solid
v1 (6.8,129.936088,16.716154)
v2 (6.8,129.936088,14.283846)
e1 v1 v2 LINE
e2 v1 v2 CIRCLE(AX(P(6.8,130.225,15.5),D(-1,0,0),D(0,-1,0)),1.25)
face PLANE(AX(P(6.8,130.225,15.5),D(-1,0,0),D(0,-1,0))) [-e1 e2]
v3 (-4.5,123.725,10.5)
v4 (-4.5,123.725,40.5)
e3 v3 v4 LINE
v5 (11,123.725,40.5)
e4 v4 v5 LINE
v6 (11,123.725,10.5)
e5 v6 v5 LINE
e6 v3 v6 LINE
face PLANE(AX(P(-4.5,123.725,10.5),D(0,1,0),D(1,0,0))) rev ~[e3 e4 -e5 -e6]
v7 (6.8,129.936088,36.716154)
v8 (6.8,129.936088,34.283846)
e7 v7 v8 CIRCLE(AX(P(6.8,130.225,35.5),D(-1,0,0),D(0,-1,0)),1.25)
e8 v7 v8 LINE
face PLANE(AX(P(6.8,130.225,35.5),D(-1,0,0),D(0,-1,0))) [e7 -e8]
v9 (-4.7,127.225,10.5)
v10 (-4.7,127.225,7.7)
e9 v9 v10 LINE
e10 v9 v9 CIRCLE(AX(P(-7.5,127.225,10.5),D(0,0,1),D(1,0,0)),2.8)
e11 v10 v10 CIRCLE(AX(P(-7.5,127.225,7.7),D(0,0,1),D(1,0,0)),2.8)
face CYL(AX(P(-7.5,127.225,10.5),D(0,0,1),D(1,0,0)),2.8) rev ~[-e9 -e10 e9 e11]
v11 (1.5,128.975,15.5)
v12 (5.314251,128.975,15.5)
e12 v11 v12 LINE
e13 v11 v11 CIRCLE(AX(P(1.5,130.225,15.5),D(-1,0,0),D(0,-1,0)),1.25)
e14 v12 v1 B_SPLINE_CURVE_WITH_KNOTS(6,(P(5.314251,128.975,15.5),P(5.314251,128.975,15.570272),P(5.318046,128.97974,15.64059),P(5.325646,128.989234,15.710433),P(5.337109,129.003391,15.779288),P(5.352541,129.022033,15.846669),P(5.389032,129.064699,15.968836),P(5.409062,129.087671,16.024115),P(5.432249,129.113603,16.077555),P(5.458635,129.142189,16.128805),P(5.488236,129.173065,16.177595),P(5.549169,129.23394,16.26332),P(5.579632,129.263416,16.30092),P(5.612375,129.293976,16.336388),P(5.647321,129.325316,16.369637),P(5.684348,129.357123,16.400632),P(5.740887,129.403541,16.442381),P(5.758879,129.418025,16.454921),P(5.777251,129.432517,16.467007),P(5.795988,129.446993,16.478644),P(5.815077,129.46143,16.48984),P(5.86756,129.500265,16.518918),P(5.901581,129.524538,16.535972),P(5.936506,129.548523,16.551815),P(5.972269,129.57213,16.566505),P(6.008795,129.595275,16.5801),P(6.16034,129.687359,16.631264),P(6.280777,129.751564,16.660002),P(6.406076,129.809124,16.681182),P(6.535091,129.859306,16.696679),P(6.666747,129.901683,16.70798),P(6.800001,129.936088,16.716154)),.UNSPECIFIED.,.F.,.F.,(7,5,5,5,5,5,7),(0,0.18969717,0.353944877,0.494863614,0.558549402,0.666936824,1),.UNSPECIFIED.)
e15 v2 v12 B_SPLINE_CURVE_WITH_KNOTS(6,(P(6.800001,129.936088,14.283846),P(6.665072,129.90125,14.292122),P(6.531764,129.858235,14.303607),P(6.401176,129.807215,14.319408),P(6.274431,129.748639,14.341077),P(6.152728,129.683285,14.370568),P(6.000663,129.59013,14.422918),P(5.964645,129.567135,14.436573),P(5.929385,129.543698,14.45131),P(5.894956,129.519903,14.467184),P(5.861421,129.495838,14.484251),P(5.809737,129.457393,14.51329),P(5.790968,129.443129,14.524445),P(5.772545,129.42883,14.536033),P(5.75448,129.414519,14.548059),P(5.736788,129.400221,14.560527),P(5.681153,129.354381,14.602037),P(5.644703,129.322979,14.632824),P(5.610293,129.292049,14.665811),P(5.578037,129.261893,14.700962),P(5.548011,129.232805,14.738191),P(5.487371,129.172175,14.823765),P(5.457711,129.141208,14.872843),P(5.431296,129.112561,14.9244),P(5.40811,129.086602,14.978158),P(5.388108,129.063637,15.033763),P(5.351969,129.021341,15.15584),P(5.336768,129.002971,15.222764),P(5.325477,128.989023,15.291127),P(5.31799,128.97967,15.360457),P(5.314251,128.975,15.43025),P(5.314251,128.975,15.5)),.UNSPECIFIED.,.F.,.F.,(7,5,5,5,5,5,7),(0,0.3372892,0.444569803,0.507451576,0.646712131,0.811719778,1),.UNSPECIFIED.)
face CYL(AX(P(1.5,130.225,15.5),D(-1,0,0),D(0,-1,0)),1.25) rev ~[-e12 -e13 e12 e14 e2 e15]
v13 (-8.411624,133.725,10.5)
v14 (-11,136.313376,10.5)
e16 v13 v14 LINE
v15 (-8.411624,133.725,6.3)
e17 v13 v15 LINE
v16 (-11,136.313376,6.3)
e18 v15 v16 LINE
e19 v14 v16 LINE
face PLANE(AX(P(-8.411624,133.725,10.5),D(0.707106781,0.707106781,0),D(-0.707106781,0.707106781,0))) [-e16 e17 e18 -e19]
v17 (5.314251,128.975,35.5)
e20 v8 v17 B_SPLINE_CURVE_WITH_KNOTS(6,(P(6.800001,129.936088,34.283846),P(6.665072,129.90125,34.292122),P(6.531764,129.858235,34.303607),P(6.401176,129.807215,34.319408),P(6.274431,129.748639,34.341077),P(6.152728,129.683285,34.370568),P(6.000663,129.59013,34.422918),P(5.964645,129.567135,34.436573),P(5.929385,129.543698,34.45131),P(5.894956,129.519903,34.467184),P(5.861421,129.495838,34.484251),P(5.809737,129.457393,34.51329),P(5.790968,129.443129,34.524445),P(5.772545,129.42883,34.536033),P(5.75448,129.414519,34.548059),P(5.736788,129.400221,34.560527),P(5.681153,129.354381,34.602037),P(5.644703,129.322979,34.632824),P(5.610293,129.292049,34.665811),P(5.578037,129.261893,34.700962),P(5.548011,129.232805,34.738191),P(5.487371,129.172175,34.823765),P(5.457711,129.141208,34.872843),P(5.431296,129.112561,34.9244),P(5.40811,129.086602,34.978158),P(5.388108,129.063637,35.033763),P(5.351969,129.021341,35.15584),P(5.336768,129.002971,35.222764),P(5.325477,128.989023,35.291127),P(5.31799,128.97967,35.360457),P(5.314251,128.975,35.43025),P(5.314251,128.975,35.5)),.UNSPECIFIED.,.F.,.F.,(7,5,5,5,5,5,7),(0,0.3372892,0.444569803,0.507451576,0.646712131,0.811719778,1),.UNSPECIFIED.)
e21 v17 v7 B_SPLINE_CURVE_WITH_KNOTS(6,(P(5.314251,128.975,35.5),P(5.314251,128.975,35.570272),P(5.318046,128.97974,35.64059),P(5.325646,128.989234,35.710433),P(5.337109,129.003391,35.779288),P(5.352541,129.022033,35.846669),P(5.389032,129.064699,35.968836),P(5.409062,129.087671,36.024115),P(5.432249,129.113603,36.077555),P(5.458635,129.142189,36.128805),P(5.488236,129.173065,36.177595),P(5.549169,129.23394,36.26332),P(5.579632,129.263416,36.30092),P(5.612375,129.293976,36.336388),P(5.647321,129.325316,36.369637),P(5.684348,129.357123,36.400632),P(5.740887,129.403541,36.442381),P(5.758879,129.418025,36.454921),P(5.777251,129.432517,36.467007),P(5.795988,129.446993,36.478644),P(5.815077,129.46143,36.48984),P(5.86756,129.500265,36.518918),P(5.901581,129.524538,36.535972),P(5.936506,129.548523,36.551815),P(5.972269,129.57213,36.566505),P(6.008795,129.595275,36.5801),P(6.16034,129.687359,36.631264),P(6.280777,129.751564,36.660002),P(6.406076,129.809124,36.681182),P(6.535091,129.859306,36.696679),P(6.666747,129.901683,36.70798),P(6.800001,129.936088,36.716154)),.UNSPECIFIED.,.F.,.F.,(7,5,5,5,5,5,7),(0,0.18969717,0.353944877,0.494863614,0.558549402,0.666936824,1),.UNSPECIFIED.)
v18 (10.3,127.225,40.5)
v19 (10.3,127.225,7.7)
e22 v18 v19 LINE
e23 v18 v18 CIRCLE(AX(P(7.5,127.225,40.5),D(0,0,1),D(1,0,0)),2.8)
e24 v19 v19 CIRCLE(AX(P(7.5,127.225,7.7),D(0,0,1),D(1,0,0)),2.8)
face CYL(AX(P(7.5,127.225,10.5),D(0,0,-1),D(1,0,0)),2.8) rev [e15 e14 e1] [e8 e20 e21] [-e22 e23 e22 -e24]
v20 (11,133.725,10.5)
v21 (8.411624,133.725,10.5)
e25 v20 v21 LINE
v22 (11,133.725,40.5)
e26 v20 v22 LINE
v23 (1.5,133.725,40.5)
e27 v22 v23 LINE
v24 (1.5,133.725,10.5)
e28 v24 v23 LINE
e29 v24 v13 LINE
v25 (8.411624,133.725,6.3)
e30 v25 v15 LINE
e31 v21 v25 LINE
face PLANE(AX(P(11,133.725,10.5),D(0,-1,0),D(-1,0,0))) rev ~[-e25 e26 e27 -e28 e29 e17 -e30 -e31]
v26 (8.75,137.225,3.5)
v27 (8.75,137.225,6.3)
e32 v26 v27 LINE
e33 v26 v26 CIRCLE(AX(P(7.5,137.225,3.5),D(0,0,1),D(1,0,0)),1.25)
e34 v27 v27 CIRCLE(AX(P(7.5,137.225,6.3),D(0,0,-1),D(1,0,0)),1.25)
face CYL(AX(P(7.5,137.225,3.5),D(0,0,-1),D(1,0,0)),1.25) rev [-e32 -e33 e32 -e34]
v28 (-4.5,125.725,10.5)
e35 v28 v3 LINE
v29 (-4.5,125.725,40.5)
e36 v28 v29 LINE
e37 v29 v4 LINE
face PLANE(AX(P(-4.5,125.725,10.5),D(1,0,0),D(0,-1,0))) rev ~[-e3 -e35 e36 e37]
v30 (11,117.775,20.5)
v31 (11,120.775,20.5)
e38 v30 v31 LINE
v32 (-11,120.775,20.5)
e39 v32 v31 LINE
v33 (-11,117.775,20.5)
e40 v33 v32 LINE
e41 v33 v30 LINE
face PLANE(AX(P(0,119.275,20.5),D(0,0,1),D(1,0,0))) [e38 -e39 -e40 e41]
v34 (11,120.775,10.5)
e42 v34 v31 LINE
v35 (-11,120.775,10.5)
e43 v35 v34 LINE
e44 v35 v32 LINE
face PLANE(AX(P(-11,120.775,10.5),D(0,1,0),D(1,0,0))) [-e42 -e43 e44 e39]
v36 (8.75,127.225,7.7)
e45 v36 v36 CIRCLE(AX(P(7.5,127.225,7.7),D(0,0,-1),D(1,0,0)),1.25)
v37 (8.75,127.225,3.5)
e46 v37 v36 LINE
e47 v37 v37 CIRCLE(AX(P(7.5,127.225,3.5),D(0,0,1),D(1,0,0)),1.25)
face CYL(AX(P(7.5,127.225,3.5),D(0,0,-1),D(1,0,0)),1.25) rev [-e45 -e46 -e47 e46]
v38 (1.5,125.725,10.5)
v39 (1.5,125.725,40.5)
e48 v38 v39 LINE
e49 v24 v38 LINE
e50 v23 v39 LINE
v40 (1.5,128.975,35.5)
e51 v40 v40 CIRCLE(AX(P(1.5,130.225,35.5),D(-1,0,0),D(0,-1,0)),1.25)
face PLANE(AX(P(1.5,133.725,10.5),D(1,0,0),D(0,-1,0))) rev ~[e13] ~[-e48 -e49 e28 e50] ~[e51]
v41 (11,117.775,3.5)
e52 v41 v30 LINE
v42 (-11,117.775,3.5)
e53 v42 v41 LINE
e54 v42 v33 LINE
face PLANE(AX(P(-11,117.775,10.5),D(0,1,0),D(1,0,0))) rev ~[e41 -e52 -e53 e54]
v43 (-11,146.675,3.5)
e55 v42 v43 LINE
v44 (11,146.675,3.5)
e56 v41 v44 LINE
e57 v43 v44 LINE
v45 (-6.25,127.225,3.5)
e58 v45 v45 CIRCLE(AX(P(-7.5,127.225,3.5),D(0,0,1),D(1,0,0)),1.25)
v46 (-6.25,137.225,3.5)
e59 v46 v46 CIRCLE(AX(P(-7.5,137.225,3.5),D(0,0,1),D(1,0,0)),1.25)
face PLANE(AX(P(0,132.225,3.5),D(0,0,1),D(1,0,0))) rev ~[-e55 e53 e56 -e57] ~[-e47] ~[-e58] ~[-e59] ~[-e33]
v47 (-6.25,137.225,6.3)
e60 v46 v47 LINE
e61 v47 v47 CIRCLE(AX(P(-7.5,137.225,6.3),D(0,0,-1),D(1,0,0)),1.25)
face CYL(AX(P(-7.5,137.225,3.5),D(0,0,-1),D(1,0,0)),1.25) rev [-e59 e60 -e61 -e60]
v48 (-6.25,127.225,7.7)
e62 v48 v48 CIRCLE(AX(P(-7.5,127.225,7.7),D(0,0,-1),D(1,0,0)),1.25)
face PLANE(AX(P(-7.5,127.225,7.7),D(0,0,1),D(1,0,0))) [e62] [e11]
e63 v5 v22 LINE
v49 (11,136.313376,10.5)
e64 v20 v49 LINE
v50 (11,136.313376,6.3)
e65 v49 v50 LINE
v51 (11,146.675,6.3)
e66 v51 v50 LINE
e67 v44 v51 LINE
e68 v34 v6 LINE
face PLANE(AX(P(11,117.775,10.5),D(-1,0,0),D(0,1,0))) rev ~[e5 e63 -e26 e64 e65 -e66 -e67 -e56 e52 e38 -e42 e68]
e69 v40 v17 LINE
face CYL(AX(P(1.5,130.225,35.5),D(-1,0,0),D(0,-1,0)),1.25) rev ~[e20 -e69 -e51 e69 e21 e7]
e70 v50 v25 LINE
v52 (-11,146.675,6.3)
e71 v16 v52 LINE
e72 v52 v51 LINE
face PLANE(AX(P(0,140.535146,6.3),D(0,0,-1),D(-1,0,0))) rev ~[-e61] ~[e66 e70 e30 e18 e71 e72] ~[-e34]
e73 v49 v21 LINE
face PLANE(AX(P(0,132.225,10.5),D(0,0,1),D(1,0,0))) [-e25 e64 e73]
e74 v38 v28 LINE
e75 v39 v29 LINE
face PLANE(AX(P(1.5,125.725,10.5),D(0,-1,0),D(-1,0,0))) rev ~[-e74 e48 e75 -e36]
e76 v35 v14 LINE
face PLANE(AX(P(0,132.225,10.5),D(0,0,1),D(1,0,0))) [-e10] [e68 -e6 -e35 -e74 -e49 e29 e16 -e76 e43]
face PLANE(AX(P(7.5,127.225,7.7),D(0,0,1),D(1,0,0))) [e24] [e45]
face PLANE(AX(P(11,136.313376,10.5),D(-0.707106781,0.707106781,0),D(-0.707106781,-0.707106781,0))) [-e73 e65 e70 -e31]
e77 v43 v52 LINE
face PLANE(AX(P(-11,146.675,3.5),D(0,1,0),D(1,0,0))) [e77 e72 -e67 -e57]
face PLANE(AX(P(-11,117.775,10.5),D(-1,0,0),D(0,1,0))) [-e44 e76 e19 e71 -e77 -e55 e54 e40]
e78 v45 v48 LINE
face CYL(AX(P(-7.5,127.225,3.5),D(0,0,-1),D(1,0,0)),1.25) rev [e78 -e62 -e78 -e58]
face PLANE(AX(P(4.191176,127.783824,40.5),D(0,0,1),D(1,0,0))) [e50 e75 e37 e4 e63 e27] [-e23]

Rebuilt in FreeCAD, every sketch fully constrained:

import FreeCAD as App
import Part
import Sketcher
from FreeCAD import Vector
Q = App.Units.Quantity

doc = App.newDocument("Part")
params = doc.addObject("Spreadsheet::Sheet", "Params")
for row, (alias, value) in enumerate([
    ("sketch1_diameter", "2.5 mm"),
    ("sketch1_width", "22 mm"),
    ("sketch1_height", "28.9 mm"),
    ("pad1_length", "7 mm"),
    ("sketch2_width", "22 mm"),
    ("pocket1_length", "4.2 mm"),
    ("sketch3_diameter", "5.6 mm"),
    ("pocket2_length", "2.8 mm"),
    ("sketch4_diameter", "5.6 mm"),
    ("sketch4_width", "6 mm"),
    ("sketch4_height", "10 mm"),
    ("sketch4_height2", "8 mm"),
    ("sketch4_width2", "15.5 mm"),
    ("pad2_length", "30 mm"),
    ("sketch5_diameter", "2.5 mm"),
    ("pocket3_length", "5.3 mm"),
    ("sketch6_width", "22 mm"),
    ("sketch6_height", "3 mm"),
    ("pad3_length", "10 mm"),
], start=1):
    params.set(f"A{row}", alias)
    params.set(f"B{row}", "=" + value)
    params.setAlias(f"B{row}", alias)

body = doc.addObject("PartDesign::Body", "Body")

sketch1 = doc.addObject("Sketcher::SketchObject", "Sketch")
body.addObject(sketch1)
sketch1.AttachmentSupport = (doc.XY_Plane, [""])
sketch1.MapMode = "FlatFace"
sketch1.AttachmentOffset = App.Placement(Vector(0, 0, 3.5), App.Rotation())
sketch1.addGeometry([
    Part.LineSegment(Vector(-11, 146.7, 0), Vector(-11, 117.8, 0)),
    Part.LineSegment(Vector(-11, 117.8, 0), Vector(11, 117.8, 0)),
    Part.LineSegment(Vector(11, 117.8, 0), Vector(11, 146.7, 0)),
    Part.LineSegment(Vector(11, 146.7, 0), Vector(-11, 146.7, 0)),
    Part.Circle(Vector(-7.5, 127.2, 0), Vector(0, 0, 1), 1.2),
    Part.Circle(Vector(7.5, 127.2, 0), Vector(0, 0, 1), 1.2),
    Part.Circle(Vector(-7.5, 137.2, 0), Vector(0, 0, 1), 1.2),
    Part.Circle(Vector(7.5, 137.2, 0), Vector(0, 0, 1), 1.2),
], False)
sketch1.addConstraint([
    Sketcher.Constraint("Coincident", 0, 2, 1, 1),
    Sketcher.Constraint("Coincident", 1, 2, 2, 1),
    Sketcher.Constraint("Coincident", 2, 2, 3, 1),
    Sketcher.Constraint("Coincident", 3, 2, 0, 1),
    Sketcher.Constraint("Vertical", 0),
    Sketcher.Constraint("Horizontal", 1),
    Sketcher.Constraint("Vertical", 2),
    Sketcher.Constraint("Horizontal", 3),
    Sketcher.Constraint("Equal", 4, 5),
    Sketcher.Constraint("Equal", 5, 6),
    Sketcher.Constraint("Equal", 6, 7),
    Sketcher.Constraint("Symmetric", 4, 3, 5, 3, -2),
    Sketcher.Constraint("Symmetric", 6, 3, 7, 3, -2),
    Sketcher.Constraint("Vertical", 4, 3, 6, 3),
    Sketcher.Constraint("Diameter", 4, Q("2.5 mm")),
    Sketcher.Constraint("DistanceX", 1, 1, 1, 2, Q("22 mm")),
    Sketcher.Constraint("DistanceY", 0, 2, 0, 1, Q("28.9 mm")),
    Sketcher.Constraint("DistanceX", 0, 2, -1, 1, Q("11 mm")),
    Sketcher.Constraint("DistanceX", 4, 3, 5, 3, Q("15 mm")),
    Sketcher.Constraint("DistanceY", 4, 3, 6, 3, Q("10 mm")),
    Sketcher.Constraint("DistanceY", 0, 2, 4, 3, Q("9.45 mm")),
    Sketcher.Constraint("DistanceY", -1, 1, 4, 3, Q("127.225 mm")),
])
sketch1.setExpression("Constraints[14]", "Params.sketch1_diameter")
sketch1.setExpression("Constraints[15]", "Params.sketch1_width")
sketch1.setExpression("Constraints[16]", "Params.sketch1_height")
pad1 = doc.addObject("PartDesign::Pad", "Pad")
body.addObject(pad1)
pad1.Profile = sketch1
pad1.setExpression("Length", "Params.pad1_length")

sketch2 = doc.addObject("Sketcher::SketchObject", "Sketch001")
body.addObject(sketch2)
sketch2.AttachmentSupport = (doc.XY_Plane, [""])
sketch2.MapMode = "FlatFace"
sketch2.AttachmentOffset = App.Placement(Vector(0, 0, 10.5), App.Rotation())
sketch2.addGeometry([
    Part.LineSegment(Vector(-11, 136.3, 0), Vector(-8.4, 133.7, 0)),
    Part.LineSegment(Vector(-8.4, 133.7, 0), Vector(8.4, 133.7, 0)),
    Part.LineSegment(Vector(8.4, 133.7, 0), Vector(11, 136.3, 0)),
    Part.LineSegment(Vector(11, 136.3, 0), Vector(11, 146.7, 0)),
    Part.LineSegment(Vector(11, 146.7, 0), Vector(-11, 146.7, 0)),
    Part.LineSegment(Vector(-11, 146.7, 0), Vector(-11, 136.3, 0)),
], False)
sketch2.addConstraint([
    Sketcher.Constraint("Coincident", 0, 2, 1, 1),
    Sketcher.Constraint("Coincident", 1, 2, 2, 1),
    Sketcher.Constraint("Coincident", 2, 2, 3, 1),
    Sketcher.Constraint("Coincident", 3, 2, 4, 1),
    Sketcher.Constraint("Coincident", 4, 2, 5, 1),
    Sketcher.Constraint("Coincident", 5, 2, 0, 1),
    Sketcher.Constraint("Horizontal", 1),
    Sketcher.Constraint("Vertical", 3),
    Sketcher.Constraint("Horizontal", 4),
    Sketcher.Constraint("Vertical", 5),
    Sketcher.Constraint("Symmetric", 2, 2, 5, 2, -2),
    Sketcher.Constraint("Perpendicular", 0, 2),
    Sketcher.Constraint("Equal", 0, 2),
    Sketcher.Constraint("DistanceX", 4, 2, 4, 1, Q("22 mm")),
    Sketcher.Constraint("DistanceY", 1, 2, 3, 2, Q("12.95 mm")),
    Sketcher.Constraint("DistanceY", -1, 1, 0, 2, Q("133.725 mm")),
    Sketcher.Constraint("DistanceX", 1, 1, 1, 2, Q("16.823248 mm")),
])
sketch2.setExpression("Constraints[13]", "Params.sketch2_width")
pocket1 = doc.addObject("PartDesign::Pocket", "Pocket")
body.addObject(pocket1)
pocket1.Profile = sketch2
pocket1.setExpression("Length", "Params.pocket1_length")

sketch3 = doc.addObject("Sketcher::SketchObject", "Sketch002")
body.addObject(sketch3)
sketch3.AttachmentSupport = (doc.XY_Plane, [""])
sketch3.MapMode = "FlatFace"
sketch3.AttachmentOffset = App.Placement(Vector(0, 0, 10.5), App.Rotation())
sketch3.addGeometry([
    Part.Circle(Vector(-7.5, 127.2, 0), Vector(0, 0, 1), 2.8),
    Part.Circle(Vector(7.5, 127.2, 0), Vector(0, 0, 1), 2.8),
], False)
sketch3.addConstraint([
    Sketcher.Constraint("Equal", 0, 1),
    Sketcher.Constraint("Symmetric", 0, 3, 1, 3, -2),
    Sketcher.Constraint("Diameter", 0, Q("5.6 mm")),
    Sketcher.Constraint("DistanceX", 0, 3, 1, 3, Q("15 mm")),
    Sketcher.Constraint("DistanceY", -1, 1, 0, 3, Q("127.225 mm")),
])
sketch3.setExpression("Constraints[2]", "Params.sketch3_diameter")
pocket2 = doc.addObject("PartDesign::Pocket", "Pocket001")
body.addObject(pocket2)
pocket2.Profile = sketch3
pocket2.setExpression("Length", "Params.pocket2_length")

sketch4 = doc.addObject("Sketcher::SketchObject", "Sketch003")
body.addObject(sketch4)
sketch4.AttachmentSupport = (doc.XY_Plane, [""])
sketch4.MapMode = "FlatFace"
sketch4.AttachmentOffset = App.Placement(Vector(0, 0, 10.5), App.Rotation())
sketch4.addGeometry([
    Part.LineSegment(Vector(-4.5, 123.7, 0), Vector(11, 123.7, 0)),
    Part.LineSegment(Vector(11, 123.7, 0), Vector(11, 133.7, 0)),
    Part.LineSegment(Vector(11, 133.7, 0), Vector(1.5, 133.7, 0)),
    Part.LineSegment(Vector(1.5, 133.7, 0), Vector(1.5, 125.7, 0)),
    Part.LineSegment(Vector(1.5, 125.7, 0), Vector(-4.5, 125.7, 0)),
    Part.LineSegment(Vector(-4.5, 125.7, 0), Vector(-4.5, 123.7, 0)),
    Part.Circle(Vector(7.5, 127.2, 0), Vector(0, 0, 1), 2.8),
], False)
sketch4.addConstraint([
    Sketcher.Constraint("Coincident", 0, 2, 1, 1),
    Sketcher.Constraint("Coincident", 1, 2, 2, 1),
    Sketcher.Constraint("Coincident", 2, 2, 3, 1),
    Sketcher.Constraint("Coincident", 3, 2, 4, 1),
    Sketcher.Constraint("Coincident", 4, 2, 5, 1),
    Sketcher.Constraint("Coincident", 5, 2, 0, 1),
    Sketcher.Constraint("Horizontal", 0),
    Sketcher.Constraint("Vertical", 1),
    Sketcher.Constraint("Horizontal", 2),
    Sketcher.Constraint("Vertical", 3),
    Sketcher.Constraint("Horizontal", 4),
    Sketcher.Constraint("Vertical", 5),
    Sketcher.Constraint("Diameter", 6, Q("5.6 mm")),
    Sketcher.Constraint("DistanceX", 4, 2, 4, 1, Q("6 mm")),
    Sketcher.Constraint("DistanceY", 1, 1, 1, 2, Q("10 mm")),
    Sketcher.Constraint("DistanceY", 3, 2, 3, 1, Q("8 mm")),
    Sketcher.Constraint("DistanceX", 0, 1, 0, 2, Q("15.5 mm")),
    Sketcher.Constraint("DistanceX", -1, 1, 0, 2, Q("11 mm")),
    Sketcher.Constraint("DistanceX", 2, 2, 6, 3, Q("6 mm")),
    Sketcher.Constraint("DistanceY", 0, 2, 6, 3, Q("3.5 mm")),
    Sketcher.Constraint("DistanceY", -1, 1, 6, 3, Q("127.225 mm")),
])
sketch4.setExpression("Constraints[12]", "Params.sketch4_diameter")
sketch4.setExpression("Constraints[13]", "Params.sketch4_width")
sketch4.setExpression("Constraints[14]", "Params.sketch4_height")
sketch4.setExpression("Constraints[15]", "Params.sketch4_height2")
sketch4.setExpression("Constraints[16]", "Params.sketch4_width2")
pad2 = doc.addObject("PartDesign::Pad", "Pad001")
body.addObject(pad2)
pad2.Profile = sketch4
pad2.setExpression("Length", "Params.pad2_length")

sketch5 = doc.addObject("Sketcher::SketchObject", "Sketch004")
body.addObject(sketch5)
sketch5.AttachmentSupport = (doc.YZ_Plane, [""])
sketch5.MapMode = "FlatFace"
sketch5.AttachmentOffset = App.Placement(Vector(0, 0, 1.5), App.Rotation())
sketch5.addGeometry([
    Part.Circle(Vector(130.2, 35.5, 0), Vector(0, 0, 1), 1.2),
    Part.Circle(Vector(130.2, 15.5, 0), Vector(0, 0, 1), 1.2),
], False)
sketch5.addConstraint([
    Sketcher.Constraint("Equal", 0, 1),
    Sketcher.Constraint("Vertical", 0, 3, 1, 3),
    Sketcher.Constraint("Diameter", 0, Q("2.5 mm")),
    Sketcher.Constraint("DistanceY", 1, 3, 0, 3, Q("20 mm")),
    Sketcher.Constraint("DistanceY", -1, 1, 0, 3, Q("35.5 mm")),
    Sketcher.Constraint("DistanceX", -1, 1, 0, 3, Q("130.225 mm")),
])
sketch5.setExpression("Constraints[2]", "Params.sketch5_diameter")
pocket3 = doc.addObject("PartDesign::Pocket", "Pocket002")
body.addObject(pocket3)
pocket3.Profile = sketch5
pocket3.setExpression("Length", "Params.pocket3_length")
pocket3.Reversed = True

sketch6 = doc.addObject("Sketcher::SketchObject", "Sketch005")
body.addObject(sketch6)
sketch6.AttachmentSupport = (doc.XY_Plane, [""])
sketch6.MapMode = "FlatFace"
sketch6.AttachmentOffset = App.Placement(Vector(0, 0, 10.5), App.Rotation())
sketch6.addGeometry([
    Part.LineSegment(Vector(-11, 120.8, 0), Vector(-11, 117.8, 0)),
    Part.LineSegment(Vector(-11, 117.8, 0), Vector(11, 117.8, 0)),
    Part.LineSegment(Vector(11, 117.8, 0), Vector(11, 120.8, 0)),
    Part.LineSegment(Vector(11, 120.8, 0), Vector(-11, 120.8, 0)),
], False)
sketch6.addConstraint([
    Sketcher.Constraint("Coincident", 0, 2, 1, 1),
    Sketcher.Constraint("Coincident", 1, 2, 2, 1),
    Sketcher.Constraint("Coincident", 2, 2, 3, 1),
    Sketcher.Constraint("Coincident", 3, 2, 0, 1),
    Sketcher.Constraint("Vertical", 0),
    Sketcher.Constraint("Horizontal", 1),
    Sketcher.Constraint("Vertical", 2),
    Sketcher.Constraint("Horizontal", 3),
    Sketcher.Constraint("DistanceX", 1, 1, 1, 2, Q("22 mm")),
    Sketcher.Constraint("DistanceY", 0, 2, 0, 1, Q("3 mm")),
    Sketcher.Constraint("DistanceX", 0, 2, -1, 1, Q("11 mm")),
    Sketcher.Constraint("DistanceY", -1, 1, 0, 2, Q("117.775 mm")),
])
sketch6.setExpression("Constraints[8]", "Params.sketch6_width")
sketch6.setExpression("Constraints[9]", "Params.sketch6_height")
pad3 = doc.addObject("PartDesign::Pad", "Pad002")
body.addObject(pad3)
pad3.Profile = sketch6
pad3.setExpression("Length", "Params.pad3_length")

doc.recompute()
